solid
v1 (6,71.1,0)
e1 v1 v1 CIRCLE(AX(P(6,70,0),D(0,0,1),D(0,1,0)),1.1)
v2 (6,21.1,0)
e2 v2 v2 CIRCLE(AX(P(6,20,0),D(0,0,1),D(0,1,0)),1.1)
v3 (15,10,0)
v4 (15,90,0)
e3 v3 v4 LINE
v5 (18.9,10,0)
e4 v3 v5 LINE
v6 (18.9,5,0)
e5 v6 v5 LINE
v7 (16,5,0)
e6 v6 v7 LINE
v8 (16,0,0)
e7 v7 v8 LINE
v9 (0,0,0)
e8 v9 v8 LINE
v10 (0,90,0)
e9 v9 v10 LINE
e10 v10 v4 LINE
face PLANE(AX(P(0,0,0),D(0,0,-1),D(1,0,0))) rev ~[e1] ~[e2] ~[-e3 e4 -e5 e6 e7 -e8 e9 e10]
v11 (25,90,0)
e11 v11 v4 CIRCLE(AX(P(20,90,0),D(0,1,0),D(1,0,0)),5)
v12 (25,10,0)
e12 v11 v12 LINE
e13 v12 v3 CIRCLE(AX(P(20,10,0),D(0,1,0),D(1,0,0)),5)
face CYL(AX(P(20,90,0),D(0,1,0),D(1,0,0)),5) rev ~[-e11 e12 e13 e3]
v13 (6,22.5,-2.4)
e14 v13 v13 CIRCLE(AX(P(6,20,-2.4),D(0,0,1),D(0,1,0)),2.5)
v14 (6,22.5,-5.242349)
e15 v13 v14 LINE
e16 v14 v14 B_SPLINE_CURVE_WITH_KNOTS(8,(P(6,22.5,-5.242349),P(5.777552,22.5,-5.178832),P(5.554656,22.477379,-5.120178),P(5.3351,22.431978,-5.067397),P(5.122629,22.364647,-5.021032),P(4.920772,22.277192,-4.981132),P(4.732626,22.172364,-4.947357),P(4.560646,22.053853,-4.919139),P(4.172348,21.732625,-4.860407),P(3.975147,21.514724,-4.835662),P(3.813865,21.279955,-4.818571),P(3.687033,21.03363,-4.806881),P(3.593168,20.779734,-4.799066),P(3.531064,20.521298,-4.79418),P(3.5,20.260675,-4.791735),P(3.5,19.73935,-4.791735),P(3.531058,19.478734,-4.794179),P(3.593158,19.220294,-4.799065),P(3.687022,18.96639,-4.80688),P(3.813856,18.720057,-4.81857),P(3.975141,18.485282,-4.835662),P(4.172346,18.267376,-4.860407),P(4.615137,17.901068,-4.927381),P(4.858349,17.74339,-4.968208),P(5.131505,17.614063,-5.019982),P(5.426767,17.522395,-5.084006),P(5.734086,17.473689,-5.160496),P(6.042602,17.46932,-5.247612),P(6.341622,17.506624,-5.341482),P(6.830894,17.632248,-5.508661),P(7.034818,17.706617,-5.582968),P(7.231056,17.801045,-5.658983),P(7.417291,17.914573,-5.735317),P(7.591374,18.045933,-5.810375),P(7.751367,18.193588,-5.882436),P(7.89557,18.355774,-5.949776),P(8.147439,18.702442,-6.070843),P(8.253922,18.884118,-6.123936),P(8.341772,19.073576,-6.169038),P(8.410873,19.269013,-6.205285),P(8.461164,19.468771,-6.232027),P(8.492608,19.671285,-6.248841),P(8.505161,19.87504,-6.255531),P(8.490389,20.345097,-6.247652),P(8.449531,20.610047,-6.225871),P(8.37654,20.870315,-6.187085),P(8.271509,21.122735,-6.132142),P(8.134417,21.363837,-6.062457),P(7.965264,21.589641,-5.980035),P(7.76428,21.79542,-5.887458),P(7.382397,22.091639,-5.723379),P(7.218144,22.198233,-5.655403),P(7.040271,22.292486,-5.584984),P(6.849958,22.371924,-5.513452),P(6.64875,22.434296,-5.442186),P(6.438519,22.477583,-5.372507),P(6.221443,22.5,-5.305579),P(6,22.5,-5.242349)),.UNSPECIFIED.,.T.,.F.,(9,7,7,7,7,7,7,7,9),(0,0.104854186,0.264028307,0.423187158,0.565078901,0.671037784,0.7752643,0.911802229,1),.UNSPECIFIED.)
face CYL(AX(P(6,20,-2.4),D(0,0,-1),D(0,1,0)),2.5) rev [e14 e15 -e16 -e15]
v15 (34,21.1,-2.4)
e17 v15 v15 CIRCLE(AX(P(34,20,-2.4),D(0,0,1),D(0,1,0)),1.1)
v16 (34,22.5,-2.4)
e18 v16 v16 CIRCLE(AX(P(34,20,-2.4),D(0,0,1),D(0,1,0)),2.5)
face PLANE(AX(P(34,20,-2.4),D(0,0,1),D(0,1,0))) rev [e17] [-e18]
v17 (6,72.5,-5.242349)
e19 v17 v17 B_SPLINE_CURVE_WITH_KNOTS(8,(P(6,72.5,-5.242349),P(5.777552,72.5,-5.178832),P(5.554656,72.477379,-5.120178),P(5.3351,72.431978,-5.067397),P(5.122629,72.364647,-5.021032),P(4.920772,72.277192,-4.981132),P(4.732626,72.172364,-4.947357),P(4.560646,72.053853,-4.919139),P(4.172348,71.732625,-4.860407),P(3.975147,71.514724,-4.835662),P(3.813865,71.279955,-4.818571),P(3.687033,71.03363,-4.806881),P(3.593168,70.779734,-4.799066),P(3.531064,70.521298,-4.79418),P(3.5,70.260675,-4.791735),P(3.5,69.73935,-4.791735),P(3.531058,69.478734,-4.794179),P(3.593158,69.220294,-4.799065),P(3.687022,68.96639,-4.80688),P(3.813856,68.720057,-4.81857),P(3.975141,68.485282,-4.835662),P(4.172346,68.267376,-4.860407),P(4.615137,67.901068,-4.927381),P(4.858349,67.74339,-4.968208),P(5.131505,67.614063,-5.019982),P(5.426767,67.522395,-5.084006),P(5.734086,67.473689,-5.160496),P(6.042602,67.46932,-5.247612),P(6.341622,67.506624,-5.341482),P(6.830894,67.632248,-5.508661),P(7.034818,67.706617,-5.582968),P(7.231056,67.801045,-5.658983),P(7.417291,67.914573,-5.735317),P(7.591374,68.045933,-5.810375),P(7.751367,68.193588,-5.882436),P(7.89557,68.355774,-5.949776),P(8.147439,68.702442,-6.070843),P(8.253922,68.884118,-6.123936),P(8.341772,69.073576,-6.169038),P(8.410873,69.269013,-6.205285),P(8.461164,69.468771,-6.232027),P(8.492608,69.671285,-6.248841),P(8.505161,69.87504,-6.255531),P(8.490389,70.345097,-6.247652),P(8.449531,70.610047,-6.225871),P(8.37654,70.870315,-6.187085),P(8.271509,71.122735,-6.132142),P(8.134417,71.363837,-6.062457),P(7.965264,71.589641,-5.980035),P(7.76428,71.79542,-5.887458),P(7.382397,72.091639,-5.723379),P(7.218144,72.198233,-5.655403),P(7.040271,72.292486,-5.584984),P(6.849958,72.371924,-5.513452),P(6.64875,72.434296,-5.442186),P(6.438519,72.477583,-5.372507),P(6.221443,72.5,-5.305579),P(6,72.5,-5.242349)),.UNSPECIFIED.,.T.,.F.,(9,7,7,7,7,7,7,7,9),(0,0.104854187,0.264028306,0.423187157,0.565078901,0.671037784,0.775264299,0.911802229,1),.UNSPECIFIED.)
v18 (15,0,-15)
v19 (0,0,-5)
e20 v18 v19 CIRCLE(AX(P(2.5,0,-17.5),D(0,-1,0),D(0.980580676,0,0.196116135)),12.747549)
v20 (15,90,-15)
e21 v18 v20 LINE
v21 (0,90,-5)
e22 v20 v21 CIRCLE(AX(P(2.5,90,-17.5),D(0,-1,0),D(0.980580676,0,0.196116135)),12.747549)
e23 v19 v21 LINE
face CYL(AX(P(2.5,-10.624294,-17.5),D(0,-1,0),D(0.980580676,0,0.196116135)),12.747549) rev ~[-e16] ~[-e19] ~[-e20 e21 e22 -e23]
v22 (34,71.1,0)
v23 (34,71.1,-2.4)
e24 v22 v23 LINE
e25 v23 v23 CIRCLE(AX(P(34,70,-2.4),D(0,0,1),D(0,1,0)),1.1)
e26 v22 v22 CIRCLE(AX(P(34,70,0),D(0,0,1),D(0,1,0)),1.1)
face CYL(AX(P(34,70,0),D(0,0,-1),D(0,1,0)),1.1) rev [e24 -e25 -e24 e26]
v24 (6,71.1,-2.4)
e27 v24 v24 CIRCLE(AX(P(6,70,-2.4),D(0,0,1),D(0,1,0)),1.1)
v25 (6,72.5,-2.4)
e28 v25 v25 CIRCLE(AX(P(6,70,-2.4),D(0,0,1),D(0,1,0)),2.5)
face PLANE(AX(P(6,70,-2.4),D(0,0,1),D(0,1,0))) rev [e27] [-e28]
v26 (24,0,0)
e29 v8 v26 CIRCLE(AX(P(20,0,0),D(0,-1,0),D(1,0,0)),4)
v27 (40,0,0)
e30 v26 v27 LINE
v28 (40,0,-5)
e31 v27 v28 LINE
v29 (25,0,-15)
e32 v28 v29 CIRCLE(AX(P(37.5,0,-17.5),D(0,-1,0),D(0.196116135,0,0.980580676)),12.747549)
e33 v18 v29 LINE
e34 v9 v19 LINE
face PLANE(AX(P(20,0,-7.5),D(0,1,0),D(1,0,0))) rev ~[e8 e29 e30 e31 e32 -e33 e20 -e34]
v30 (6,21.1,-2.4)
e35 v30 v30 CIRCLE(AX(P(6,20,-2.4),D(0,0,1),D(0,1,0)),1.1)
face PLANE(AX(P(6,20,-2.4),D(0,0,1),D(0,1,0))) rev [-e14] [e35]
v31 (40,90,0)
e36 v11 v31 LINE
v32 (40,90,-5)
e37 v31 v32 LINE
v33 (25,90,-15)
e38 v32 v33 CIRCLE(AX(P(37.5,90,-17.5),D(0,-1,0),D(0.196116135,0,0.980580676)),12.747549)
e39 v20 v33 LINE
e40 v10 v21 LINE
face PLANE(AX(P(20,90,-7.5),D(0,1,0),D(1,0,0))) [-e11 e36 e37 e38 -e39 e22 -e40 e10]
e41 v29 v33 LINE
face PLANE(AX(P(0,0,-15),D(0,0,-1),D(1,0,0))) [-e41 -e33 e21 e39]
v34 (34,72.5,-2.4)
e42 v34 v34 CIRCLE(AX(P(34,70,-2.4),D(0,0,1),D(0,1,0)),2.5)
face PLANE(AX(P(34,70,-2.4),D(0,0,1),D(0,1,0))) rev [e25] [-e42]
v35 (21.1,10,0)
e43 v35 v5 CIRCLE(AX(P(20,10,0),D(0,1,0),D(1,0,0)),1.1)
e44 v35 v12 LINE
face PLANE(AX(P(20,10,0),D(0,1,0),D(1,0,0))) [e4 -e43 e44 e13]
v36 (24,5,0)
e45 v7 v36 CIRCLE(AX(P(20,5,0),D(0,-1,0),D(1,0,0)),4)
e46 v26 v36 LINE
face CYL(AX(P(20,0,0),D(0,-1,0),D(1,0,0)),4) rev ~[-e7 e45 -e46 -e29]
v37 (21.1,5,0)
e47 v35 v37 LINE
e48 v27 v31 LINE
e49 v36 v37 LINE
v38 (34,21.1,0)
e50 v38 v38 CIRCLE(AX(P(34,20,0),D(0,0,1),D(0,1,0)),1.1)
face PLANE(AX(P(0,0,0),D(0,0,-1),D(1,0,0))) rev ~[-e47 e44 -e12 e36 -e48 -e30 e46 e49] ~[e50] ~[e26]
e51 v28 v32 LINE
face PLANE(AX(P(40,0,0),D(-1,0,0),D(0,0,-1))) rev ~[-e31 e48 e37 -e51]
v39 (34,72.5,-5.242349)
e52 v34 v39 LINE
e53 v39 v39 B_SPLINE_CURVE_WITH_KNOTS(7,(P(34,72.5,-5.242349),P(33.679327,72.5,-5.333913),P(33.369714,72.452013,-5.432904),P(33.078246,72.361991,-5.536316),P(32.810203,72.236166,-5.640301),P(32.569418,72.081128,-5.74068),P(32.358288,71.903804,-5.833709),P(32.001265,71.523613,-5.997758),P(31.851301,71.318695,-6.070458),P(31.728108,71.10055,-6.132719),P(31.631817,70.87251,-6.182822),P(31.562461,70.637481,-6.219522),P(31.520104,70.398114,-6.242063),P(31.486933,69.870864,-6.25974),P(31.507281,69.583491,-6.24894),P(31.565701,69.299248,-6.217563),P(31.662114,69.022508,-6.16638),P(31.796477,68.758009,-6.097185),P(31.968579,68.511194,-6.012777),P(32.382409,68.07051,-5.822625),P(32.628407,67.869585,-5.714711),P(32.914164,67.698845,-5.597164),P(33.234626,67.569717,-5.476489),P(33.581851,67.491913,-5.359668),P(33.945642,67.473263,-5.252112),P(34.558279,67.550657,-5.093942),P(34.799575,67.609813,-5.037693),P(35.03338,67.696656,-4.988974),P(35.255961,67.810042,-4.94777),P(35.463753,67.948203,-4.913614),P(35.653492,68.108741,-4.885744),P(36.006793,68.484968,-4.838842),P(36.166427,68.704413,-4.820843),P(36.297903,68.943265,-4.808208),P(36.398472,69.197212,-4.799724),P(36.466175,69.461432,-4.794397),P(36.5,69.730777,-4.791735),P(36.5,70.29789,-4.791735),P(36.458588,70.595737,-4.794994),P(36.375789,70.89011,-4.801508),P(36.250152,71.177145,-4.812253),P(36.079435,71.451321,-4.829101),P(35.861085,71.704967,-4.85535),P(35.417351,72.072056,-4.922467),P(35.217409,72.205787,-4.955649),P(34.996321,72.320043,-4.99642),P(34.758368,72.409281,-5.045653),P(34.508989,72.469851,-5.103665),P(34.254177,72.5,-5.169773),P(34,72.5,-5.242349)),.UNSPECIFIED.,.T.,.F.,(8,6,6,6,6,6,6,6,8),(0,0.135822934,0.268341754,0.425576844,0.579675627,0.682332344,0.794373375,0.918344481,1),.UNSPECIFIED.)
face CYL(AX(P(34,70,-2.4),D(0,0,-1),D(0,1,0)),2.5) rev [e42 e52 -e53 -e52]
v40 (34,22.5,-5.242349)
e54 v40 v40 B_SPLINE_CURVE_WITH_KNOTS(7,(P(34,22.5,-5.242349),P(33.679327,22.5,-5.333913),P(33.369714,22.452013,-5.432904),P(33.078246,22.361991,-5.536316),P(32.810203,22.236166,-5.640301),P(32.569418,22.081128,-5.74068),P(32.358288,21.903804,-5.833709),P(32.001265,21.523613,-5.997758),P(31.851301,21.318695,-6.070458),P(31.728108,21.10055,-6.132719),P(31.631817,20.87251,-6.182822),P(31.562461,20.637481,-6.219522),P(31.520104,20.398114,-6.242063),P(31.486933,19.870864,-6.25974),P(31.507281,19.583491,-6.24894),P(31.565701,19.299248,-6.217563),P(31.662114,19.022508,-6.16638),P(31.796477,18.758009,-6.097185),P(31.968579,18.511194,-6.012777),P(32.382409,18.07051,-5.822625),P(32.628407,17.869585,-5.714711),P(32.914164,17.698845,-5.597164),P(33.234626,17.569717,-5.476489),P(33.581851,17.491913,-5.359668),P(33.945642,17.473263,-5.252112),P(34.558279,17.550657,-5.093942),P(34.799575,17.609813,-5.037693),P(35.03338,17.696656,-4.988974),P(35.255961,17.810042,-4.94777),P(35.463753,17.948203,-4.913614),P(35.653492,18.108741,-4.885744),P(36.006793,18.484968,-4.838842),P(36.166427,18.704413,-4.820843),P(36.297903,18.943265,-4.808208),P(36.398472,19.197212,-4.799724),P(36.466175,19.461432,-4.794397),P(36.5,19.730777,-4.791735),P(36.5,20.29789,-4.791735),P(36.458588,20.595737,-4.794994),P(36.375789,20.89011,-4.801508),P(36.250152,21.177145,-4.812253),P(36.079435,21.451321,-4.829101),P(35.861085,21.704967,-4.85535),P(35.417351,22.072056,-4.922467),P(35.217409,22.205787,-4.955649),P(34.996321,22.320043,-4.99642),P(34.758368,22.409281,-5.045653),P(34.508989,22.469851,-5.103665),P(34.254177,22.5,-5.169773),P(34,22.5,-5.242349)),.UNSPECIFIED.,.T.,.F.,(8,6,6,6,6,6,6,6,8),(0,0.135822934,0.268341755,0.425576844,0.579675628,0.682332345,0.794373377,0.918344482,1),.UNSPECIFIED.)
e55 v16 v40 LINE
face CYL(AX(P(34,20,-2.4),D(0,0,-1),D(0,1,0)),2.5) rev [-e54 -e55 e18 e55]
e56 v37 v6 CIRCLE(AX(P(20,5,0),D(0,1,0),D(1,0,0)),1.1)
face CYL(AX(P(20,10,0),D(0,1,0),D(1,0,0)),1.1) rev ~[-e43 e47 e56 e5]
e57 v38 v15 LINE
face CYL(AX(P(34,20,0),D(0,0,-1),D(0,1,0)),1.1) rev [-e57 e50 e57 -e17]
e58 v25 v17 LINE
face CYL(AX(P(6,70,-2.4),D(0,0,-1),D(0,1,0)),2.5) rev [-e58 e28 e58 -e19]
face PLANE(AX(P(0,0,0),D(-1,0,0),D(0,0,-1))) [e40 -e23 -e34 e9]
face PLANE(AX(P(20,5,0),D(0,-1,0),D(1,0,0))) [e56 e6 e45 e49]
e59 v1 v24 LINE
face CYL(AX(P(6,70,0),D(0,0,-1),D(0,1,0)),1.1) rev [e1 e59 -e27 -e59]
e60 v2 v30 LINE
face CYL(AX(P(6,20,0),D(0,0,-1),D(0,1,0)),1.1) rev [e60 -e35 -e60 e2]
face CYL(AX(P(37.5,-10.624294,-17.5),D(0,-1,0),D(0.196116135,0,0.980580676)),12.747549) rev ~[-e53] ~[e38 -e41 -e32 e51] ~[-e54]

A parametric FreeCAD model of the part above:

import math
import FreeCAD as App
import Part
import Sketcher
Q = App.Units.Quantity

doc = App.newDocument("Part")
body = doc.addObject("PartDesign::Body", "Body")

sketch1 = doc.addObject("Sketcher::SketchObject", "Sketch")
body.addObject(sketch1)
sketch1.AttachmentSupport = (doc.XZ_Plane, [""])
sketch1.MapMode = "FlatFace"
sketch1.addGeometry(Part.LineSegment(App.Vector(0, -15, 0), App.Vector(0, 0, 0)), False)
sketch1.addGeometry(Part.LineSegment(App.Vector(0, 0, 0), App.Vector(40, 0, 0)), False)
sketch1.addGeometry(Part.LineSegment(App.Vector(40, 0, 0), App.Vector(40, -15, 0)), False)
sketch1.addGeometry(Part.LineSegment(App.Vector(40, -15, 0), App.Vector(0, -15, 0)), False)
sketch1.addConstraint(Sketcher.Constraint("Coincident", 0, 2, 1, 1))
sketch1.addConstraint(Sketcher.Constraint("Coincident", 1, 2, 2, 1))
sketch1.addConstraint(Sketcher.Constraint("Coincident", 2, 2, 3, 1))
sketch1.addConstraint(Sketcher.Constraint("Coincident", 3, 2, 0, 1))
sketch1.addConstraint(Sketcher.Constraint("Vertical", 0))
sketch1.addConstraint(Sketcher.Constraint("Horizontal", 1))
sketch1.addConstraint(Sketcher.Constraint("Vertical", 2))
sketch1.addConstraint(Sketcher.Constraint("Horizontal", 3))
sketch1.addConstraint(Sketcher.Constraint("Coincident", 0, 2, -1, 1))
sketch1.addConstraint(Sketcher.Constraint("DistanceX", 1, 1, 1, 2, 40.0))
sketch1.addConstraint(Sketcher.Constraint("DistanceY", 0, 1, 0, 2, 15.0))
pad1 = doc.addObject("PartDesign::Pad", "Pad")
body.addObject(pad1)
pad1.Profile = sketch1
pad1.Length = 90
pad1.Reversed = True

sketch2 = doc.addObject("Sketcher::SketchObject", "Sketch001")
body.addObject(sketch2)
sketch2.AttachmentSupport = (doc.XZ_Plane, [""])
sketch2.MapMode = "FlatFace"
sketch2.AttachmentOffset = App.Placement(App.Vector(0, 0, -90), App.Rotation())
sketch2.addGeometry(Part.Circle(App.Vector(20, 0, 0), App.Vector(0, 0, 1), 5), False)
sketch2.addConstraint(Sketcher.Constraint("PointOnObject", 0, 3, -1))
sketch2.addConstraint(Sketcher.Constraint("Diameter", 0, 10.0))
sketch2.addConstraint(Sketcher.Constraint("DistanceX", -1, 1, 0, 3, 20.0))
pocket1 = doc.addObject("PartDesign::Pocket", "Pocket")
body.addObject(pocket1)
pocket1.Profile = sketch2
pocket1.Length = 80
pocket1.Reversed = True

sketch3 = doc.addObject("Sketcher::SketchObject", "Sketch002")
body.addObject(sketch3)
sketch3.AttachmentSupport = (doc.XZ_Plane, [""])
sketch3.MapMode = "FlatFace"
sketch3.addGeometry(Part.Circle(App.Vector(20, 0, 0), App.Vector(0, 0, 1), 4), False)
sketch3.addConstraint(Sketcher.Constraint("PointOnObject", 0, 3, -1))
sketch3.addConstraint(Sketcher.Constraint("Diameter", 0, 8.0))
sketch3.addConstraint(Sketcher.Constraint("DistanceX", -1, 1, 0, 3, 20.0))
pocket2 = doc.addObject("PartDesign::Pocket", "Pocket001")
body.addObject(pocket2)
pocket2.Profile = sketch3
pocket2.Length = 5

sketch4 = doc.addObject("Sketcher::SketchObject", "Sketch003")
body.addObject(sketch4)
sketch4.AttachmentSupport = (doc.XZ_Plane, [""])
sketch4.MapMode = "FlatFace"
sketch4.AttachmentOffset = App.Placement(App.Vector(0, 0, -10), App.Rotation())
sketch4.addGeometry(Part.Circle(App.Vector(20, 0, 0), App.Vector(0, 0, 1), 1.1), False)
sketch4.addConstraint(Sketcher.Constraint("PointOnObject", 0, 3, -1))
sketch4.addConstraint(Sketcher.Constraint("Diameter", 0, 2.2))
sketch4.addConstraint(Sketcher.Constraint("DistanceX", -1, 1, 0, 3, 20.0))
pocket3 = doc.addObject("PartDesign::Pocket", "Pocket002")
body.addObject(pocket3)
pocket3.Profile = sketch4
pocket3.Type = "ThroughAll"
pocket3.Reversed = True

sketch5 = doc.addObject("Sketcher::SketchObject", "Sketch004")
body.addObject(sketch5)
sketch5.AttachmentSupport = (doc.YZ_Plane, [""])
sketch5.MapMode = "FlatFace"
sketch5.AttachmentOffset = App.Placement(App.Vector(0, 0, 6), App.Rotation())
sketch5.addGeometry(Part.LineSegment(App.Vector(70, 0, 0), App.Vector(70, -15, 0)), False)
sketch5.addGeometry(Part.LineSegment(App.Vector(70, -15, 0), App.Vector(73.5, -15, 0)), False)
sketch5.addGeometry(Part.LineSegment(App.Vector(73.5, -15, 0), App.Vector(72.5, -14, 0)), False)
sketch5.addGeometry(Part.LineSegment(App.Vector(72.5, -14, 0), App.Vector(72.5, -2.4, 0)), False)
sketch5.addGeometry(Part.LineSegment(App.Vector(72.5, -2.4, 0), App.Vector(71.1, -2.4, 0)), False)
sketch5.addGeometry(Part.LineSegment(App.Vector(71.1, -2.4, 0), App.Vector(71.1, 0, 0)), False)
sketch5.addGeometry(Part.LineSegment(App.Vector(71.1, 0, 0), App.Vector(70, 0, 0)), False)
sketch5.addGeometry(Part.LineSegment(App.Vector(70, -15, 0), App.Vector(70, 0, 0)), True)
sketch5.addConstraint(Sketcher.Constraint("Coincident", 0, 2, 1, 1))
sketch5.addConstraint(Sketcher.Constraint("Coincident", 1, 2, 2, 1))
sketch5.addConstraint(Sketcher.Constraint("Coincident", 2, 2, 3, 1))
sketch5.addConstraint(Sketcher.Constraint("Coincident", 3, 2, 4, 1))
sketch5.addConstraint(Sketcher.Constraint("Coincident", 4, 2, 5, 1))
sketch5.addConstraint(Sketcher.Constraint("Coincident", 5, 2, 6, 1))
sketch5.addConstraint(Sketcher.Constraint("Coincident", 6, 2, 0, 1))
sketch5.addConstraint(Sketcher.Constraint("Vertical", 0))
sketch5.addConstraint(Sketcher.Constraint("Horizontal", 1))
sketch5.addConstraint(Sketcher.Constraint("Vertical", 3))
sketch5.addConstraint(Sketcher.Constraint("Horizontal", 4))
sketch5.addConstraint(Sketcher.Constraint("Vertical", 5))
sketch5.addConstraint(Sketcher.Constraint("Horizontal", 6))
sketch5.addConstraint(Sketcher.Constraint("Vertical", 7))
sketch5.addConstraint(Sketcher.Constraint("Coincident", 7, 1, 0, 2))
sketch5.addConstraint(Sketcher.Constraint("PointOnObject", 5, 2, -1))
sketch5.addConstraint(Sketcher.Constraint("PointOnObject", 7, 2, -1))
sketch5.addConstraint(Sketcher.Constraint("DistanceY", 0, 2, 0, 1, 15.0))
sketch5.addConstraint(Sketcher.Constraint("Angle", 2, Q("135 deg")))
sketch5.addConstraint(Sketcher.Constraint("DistanceX", 1, 1, 1, 2, 3.5))
sketch5.addConstraint(Sketcher.Constraint("DistanceX", 4, 2, 4, 1, 1.4))
sketch5.addConstraint(Sketcher.Constraint("DistanceX", 6, 2, 6, 1, 1.1))
sketch5.addConstraint(Sketcher.Constraint("DistanceY", 3, 1, 3, 2, 11.6))
sketch5.addConstraint(Sketcher.Constraint("DistanceX", -1, 1, 0, 2, 70.0))
groove = doc.addObject("PartDesign::Groove", "Groove")
body.addObject(groove)
groove.Profile = sketch5
groove.ReferenceAxis = (sketch5, ["Axis0"])
groove.Angle = 360
doc.recompute()

linearpattern = doc.addObject("PartDesign::LinearPattern", "LinearPattern")
body.addObject(linearpattern)
linearpattern.Originals = [groove]
linearpattern.Direction = (doc.Y_Axis, [""])
linearpattern.Mode = "offset"
linearpattern.Offset = 50
linearpattern.Occurrences = 2
linearpattern.Reversed = True
body.Tip = linearpattern
doc.recompute()

datumline = doc.addObject("PartDesign::Line", "DatumLine")
body.addObject(datumline)
datumline.Placement = App.Placement(App.Vector(0, 0, 0), App.Rotation(App.Vector(0, 0, 1), App.Vector(0.488603369, -0.872506016, 0)))
linearpattern2 = doc.addObject("PartDesign::LinearPattern", "LinearPattern001")
body.addObject(linearpattern2)
linearpattern2.Originals = [groove]
linearpattern2.Direction = (datumline, [""])
linearpattern2.Mode = "offset"
linearpattern2.Offset = 57.306195
linearpattern2.Occurrences = 2
body.Tip = linearpattern2
doc.recompute()

linearpattern3 = doc.addObject("PartDesign::LinearPattern", "LinearPattern002")
body.addObject(linearpattern3)
linearpattern3.Originals = [groove]
linearpattern3.Direction = (doc.X_Axis, [""])
linearpattern3.Mode = "offset"
linearpattern3.Offset = 28
linearpattern3.Occurrences = 2
body.Tip = linearpattern3

sketch6 = doc.addObject("Sketcher::SketchObject", "Sketch005")
body.addObject(sketch6)
sketch6.AttachmentSupport = (doc.XZ_Plane, [""])
sketch6.MapMode = "FlatFace"
sketch6.AttachmentOffset = App.Placement(App.Vector(0, 0, -90), App.Rotation())
sketch6.addGeometry(Part.LineSegment(App.Vector(40, -5, 0), App.Vector(131, -23, 0)), False)
sketch6.addGeometry(Part.LineSegment(App.Vector(131, -23, 0), App.Vector(233, -177, 0)), False)
sketch6.addGeometry(Part.LineSegment(App.Vector(233, -177, 0), App.Vector(109, -260, 0)), False)
sketch6.addGeometry(Part.LineSegment(App.Vector(109, -260, 0), App.Vector(7, -106, 0)), False)
sketch6.addGeometry(Part.LineSegment(App.Vector(7, -106, 0), App.Vector(25, -15, 0)), False)
sketch6.addGeometry(Part.ArcOfCircle(Part.Circle(App.Vector(38, -17, 0), App.Vector(0, 0, 1), 13), math.radians(79), math.radians(169)), False)
sketch6.addConstraint(Sketcher.Constraint("Coincident", 0, 2, 1, 1))
sketch6.addConstraint(Sketcher.Constraint("Coincident", 1, 2, 2, 1))
sketch6.addConstraint(Sketcher.Constraint("Coincident", 2, 2, 3, 1))
sketch6.addConstraint(Sketcher.Constraint("Coincident", 3, 2, 4, 1))
sketch6.addConstraint(Sketcher.Constraint("Tangent", 4, 2, 5, 2))
sketch6.addConstraint(Sketcher.Constraint("Tangent", 5, 1, 0, 1))
sketch6.addConstraint(Sketcher.Constraint("Perpendicular", 1, 2))
sketch6.addConstraint(Sketcher.Constraint("Perpendicular", 2, 3))
sketch6.addConstraint(Sketcher.Constraint("Perpendicular", 0, 4))
sketch6.addConstraint(Sketcher.Constraint("Equal", 1, 3))
sketch6.addConstraint(Sketcher.Constraint("Equal", 0, 4))
sketch6.addConstraint(Sketcher.Constraint("DistanceX", -1, 1, 4, 2, 25.0))
sketch6.addConstraint(Sketcher.Constraint("DistanceY", 4, 2, -1, 1, 15.0))
sketch6.addConstraint(Sketcher.Constraint("DistanceX", -1, 1, 5, 1, 40.0))
sketch6.addConstraint(Sketcher.Constraint("DistanceY", 5, 1, -1, 1, 5.0))
sketch6.addConstraint(Sketcher.Constraint("Distance", 2, 148.78893))
sketch6.addConstraint(Sketcher.Constraint("DistanceY", 1, 2, -1, 1, 176.999568))
pocket4 = doc.addObject("PartDesign::Pocket", "Pocket003")
body.addObject(pocket4)
pocket4.Profile = sketch6
pocket4.Type = "ThroughAll"
pocket4.Midplane = True

sketch7 = doc.addObject("Sketcher::SketchObject", "Sketch006")
body.addObject(sketch7)
sketch7.AttachmentSupport = (doc.XZ_Plane, [""])
sketch7.MapMode = "FlatFace"
sketch7.AttachmentOffset = App.Placement(App.Vector(0, 0, -90), App.Rotation())
sketch7.addGeometry(Part.LineSegment(App.Vector(15, -15, 0), App.Vector(33, -106, 0)), False)
sketch7.addGeometry(Part.LineSegment(App.Vector(33, -106, 0), App.Vector(-69, -260, 0)), False)
sketch7.addGeometry(Part.LineSegment(App.Vector(-69, -260, 0), App.Vector(-193, -177, 0)), False)
sketch7.addGeometry(Part.LineSegment(App.Vector(-193, -177, 0), App.Vector(-91, -23, 0)), False)
sketch7.addGeometry(Part.LineSegment(App.Vector(-91, -23, 0), App.Vector(0, -5, 0)), False)
sketch7.addGeometry(Part.ArcOfCircle(Part.Circle(App.Vector(2, -17, 0), App.Vector(0, 0, 1), 13), math.radians(11), math.radians(101)), False)
sketch7.addConstraint(Sketcher.Constraint("Coincident", 0, 2, 1, 1))
sketch7.addConstraint(Sketcher.Constraint("Coincident", 1, 2, 2, 1))
sketch7.addConstraint(Sketcher.Constraint("Coincident", 2, 2, 3, 1))
sketch7.addConstraint(Sketcher.Constraint("Coincident", 3, 2, 4, 1))
sketch7.addConstraint(Sketcher.Constraint("Tangent", 4, 2, 5, 2))
sketch7.addConstraint(Sketcher.Constraint("Tangent", 5, 1, 0, 1))
sketch7.addConstraint(Sketcher.Constraint("PointOnObject", 4, 2, -2))
sketch7.addConstraint(Sketcher.Constraint("Perpendicular", 1, 2))
sketch7.addConstraint(Sketcher.Constraint("Perpendicular", 2, 3))
sketch7.addConstraint(Sketcher.Constraint("Perpendicular", 0, 4))
sketch7.addConstraint(Sketcher.Constraint("Equal", 1, 3))
sketch7.addConstraint(Sketcher.Constraint("Equal", 0, 4))
sketch7.addConstraint(Sketcher.Constraint("DistanceY", 4, 2, -1, 1, 5.0))
sketch7.addConstraint(Sketcher.Constraint("DistanceX", -1, 1, 5, 1, 15.0))
sketch7.addConstraint(Sketcher.Constraint("DistanceY", 5, 1, -1, 1, 15.0))
sketch7.addConstraint(Sketcher.Constraint("Distance", 2, 148.78893))
sketch7.addConstraint(Sketcher.Constraint("DistanceX", 1, 2, -1, 1, 69.444192))
pocket5 = doc.addObject("PartDesign::Pocket", "Pocket004")
body.addObject(pocket5)
pocket5.Profile = sketch7
pocket5.Type = "ThroughAll"
pocket5.Midplane = True

doc.recompute()
